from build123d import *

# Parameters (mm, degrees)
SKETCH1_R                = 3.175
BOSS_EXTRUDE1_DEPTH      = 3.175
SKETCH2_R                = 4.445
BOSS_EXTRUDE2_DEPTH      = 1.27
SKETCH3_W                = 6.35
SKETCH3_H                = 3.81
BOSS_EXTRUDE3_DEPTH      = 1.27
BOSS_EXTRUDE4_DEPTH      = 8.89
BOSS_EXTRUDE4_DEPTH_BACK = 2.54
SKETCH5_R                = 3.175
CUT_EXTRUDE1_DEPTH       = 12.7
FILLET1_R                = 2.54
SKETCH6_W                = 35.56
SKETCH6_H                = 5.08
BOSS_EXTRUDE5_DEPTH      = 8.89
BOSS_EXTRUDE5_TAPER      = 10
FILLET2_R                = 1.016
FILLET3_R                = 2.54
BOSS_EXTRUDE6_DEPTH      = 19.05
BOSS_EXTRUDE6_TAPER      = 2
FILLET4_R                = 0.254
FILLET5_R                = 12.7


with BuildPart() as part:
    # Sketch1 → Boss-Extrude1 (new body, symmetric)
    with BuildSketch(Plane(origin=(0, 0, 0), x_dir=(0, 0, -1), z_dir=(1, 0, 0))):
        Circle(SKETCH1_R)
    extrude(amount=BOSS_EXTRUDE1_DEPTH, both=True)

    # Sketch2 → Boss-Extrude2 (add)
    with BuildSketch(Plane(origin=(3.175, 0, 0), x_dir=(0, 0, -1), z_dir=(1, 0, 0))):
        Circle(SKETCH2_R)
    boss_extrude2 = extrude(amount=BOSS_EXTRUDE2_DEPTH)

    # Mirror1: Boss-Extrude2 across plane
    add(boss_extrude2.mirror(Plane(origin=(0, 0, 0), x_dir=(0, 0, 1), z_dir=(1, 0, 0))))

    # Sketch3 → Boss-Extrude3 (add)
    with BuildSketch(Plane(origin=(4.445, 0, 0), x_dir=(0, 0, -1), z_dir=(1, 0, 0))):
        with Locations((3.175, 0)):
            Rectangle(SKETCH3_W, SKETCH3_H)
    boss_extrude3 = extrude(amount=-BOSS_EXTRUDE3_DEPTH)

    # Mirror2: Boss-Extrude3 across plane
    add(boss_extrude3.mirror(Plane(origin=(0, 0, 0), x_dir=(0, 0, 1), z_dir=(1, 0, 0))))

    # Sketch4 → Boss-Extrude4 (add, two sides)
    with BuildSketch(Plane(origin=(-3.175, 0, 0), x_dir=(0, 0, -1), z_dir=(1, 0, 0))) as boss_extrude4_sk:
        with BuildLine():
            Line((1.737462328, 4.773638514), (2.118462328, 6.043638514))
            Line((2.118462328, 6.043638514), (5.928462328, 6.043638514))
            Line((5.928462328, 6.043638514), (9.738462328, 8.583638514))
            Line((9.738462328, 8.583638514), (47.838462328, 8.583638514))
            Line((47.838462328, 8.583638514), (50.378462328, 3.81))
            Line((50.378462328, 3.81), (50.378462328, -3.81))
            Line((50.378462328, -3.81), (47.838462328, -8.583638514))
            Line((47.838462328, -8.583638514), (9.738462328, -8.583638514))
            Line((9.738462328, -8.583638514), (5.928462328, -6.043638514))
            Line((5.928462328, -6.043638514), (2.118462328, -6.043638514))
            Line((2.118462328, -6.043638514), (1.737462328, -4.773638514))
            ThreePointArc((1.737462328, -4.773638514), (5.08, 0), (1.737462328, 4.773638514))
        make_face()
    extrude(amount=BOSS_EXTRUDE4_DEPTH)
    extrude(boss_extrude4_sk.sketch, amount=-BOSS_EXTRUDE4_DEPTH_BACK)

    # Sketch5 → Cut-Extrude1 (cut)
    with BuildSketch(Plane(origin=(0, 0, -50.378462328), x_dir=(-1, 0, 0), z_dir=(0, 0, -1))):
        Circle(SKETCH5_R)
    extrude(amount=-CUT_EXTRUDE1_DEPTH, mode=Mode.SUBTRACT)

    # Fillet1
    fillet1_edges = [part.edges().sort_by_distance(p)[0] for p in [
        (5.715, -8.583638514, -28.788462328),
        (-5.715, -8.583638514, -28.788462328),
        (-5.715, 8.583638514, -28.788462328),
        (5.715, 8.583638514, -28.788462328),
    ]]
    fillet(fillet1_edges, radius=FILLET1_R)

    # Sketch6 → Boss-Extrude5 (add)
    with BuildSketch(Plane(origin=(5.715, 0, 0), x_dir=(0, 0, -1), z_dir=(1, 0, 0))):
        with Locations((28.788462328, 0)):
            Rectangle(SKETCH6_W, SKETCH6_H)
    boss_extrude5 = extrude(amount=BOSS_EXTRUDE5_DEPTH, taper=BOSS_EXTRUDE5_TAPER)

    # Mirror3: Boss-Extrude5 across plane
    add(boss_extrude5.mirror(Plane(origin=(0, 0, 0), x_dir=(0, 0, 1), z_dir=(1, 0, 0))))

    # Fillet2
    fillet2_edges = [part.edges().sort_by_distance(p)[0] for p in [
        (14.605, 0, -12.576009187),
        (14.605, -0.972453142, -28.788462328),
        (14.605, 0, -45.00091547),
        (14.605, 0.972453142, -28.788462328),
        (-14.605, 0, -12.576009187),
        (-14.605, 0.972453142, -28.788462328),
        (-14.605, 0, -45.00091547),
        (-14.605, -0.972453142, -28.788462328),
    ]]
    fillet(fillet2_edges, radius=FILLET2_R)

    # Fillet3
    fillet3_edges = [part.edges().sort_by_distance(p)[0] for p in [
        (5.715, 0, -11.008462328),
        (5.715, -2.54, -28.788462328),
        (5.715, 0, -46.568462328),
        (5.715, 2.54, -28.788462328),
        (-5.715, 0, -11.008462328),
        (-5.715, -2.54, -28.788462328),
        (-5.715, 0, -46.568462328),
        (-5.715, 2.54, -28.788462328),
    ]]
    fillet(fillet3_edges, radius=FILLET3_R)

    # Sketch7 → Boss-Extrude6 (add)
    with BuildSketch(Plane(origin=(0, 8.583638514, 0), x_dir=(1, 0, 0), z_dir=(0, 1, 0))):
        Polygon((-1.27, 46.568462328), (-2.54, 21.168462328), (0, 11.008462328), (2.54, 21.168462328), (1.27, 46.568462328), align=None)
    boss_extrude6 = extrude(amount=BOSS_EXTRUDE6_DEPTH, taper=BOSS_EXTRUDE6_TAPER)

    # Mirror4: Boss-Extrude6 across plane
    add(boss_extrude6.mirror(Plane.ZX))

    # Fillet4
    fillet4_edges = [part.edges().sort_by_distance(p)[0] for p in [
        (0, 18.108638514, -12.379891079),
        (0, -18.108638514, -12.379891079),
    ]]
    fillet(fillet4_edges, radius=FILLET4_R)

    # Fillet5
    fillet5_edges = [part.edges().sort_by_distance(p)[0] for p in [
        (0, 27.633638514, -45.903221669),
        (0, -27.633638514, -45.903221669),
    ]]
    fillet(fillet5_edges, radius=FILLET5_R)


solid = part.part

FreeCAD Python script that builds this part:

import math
import FreeCAD as App
import Part
import Sketcher
from FreeCAD import Vector
Q = App.Units.Quantity


def edges_at(feature, points):
    """Names of the edges that pass closest to the given points."""
    edges = feature.Shape.Edges
    near = lambda p: min(range(len(edges)), key=lambda i: edges[i].distToShape(Part.Vertex(*p))[0])
    return sorted({f"Edge{near(p) + 1}" for p in points})


def add_polygon(sketch, points):
    """Adds a closed chain of lines whose ends are joined by coincident constraints."""
    first, n = sketch.GeometryCount, len(points)
    for a, b in zip(points, points[1:] + points[:1]):
        sketch.addGeometry(Part.LineSegment(App.Vector(*a, 0), App.Vector(*b, 0)), False)
    for i in range(n):
        sketch.addConstraint(Sketcher.Constraint("Coincident", first + i, 2, first + (i + 1) % n, 1))

doc = App.newDocument("Part")
params = doc.addObject("Spreadsheet::Sheet", "Params")
for row, (alias, value) in enumerate([
    ("sketch1_diameter", "0.25 in"),
    ("pad1_length", "0.25 in"),
    ("sketch2_diameter", "0.35 in"),
    ("pad2_length", "0.05 in"),
    ("sketch3_width", "0.15 in"),
    ("sketch3_height", "0.25 in"),
    ("pad3_length", "0.05 in"),
    ("sketch4_radius", "0.2 in"),
    ("sketch4_width", "0.3 in"),
    ("sketch4_height", "1.5 in"),
    ("sketch4_height2", "0.15 in"),
    ("pad4_length", "0.35 in"),
    ("pad4_length2", "0.1 in"),
    ("sketch5_diameter", "0.25 in"),
    ("pocket1_length", "0.5 in"),
    ("fillet_radius", "0.1 in"),
    ("sketch6_width", "0.2 in"),
    ("sketch6_height", "1.4 in"),
    ("pad5_length", "0.35 in"),
    ("pad5_taper", "-10 deg"),
    ("fillet2_radius", "0.04 in"),
    ("fillet3_radius", "0.1 in"),
    ("sketch7_width", "0.1 in"),
    ("pad6_length", "0.75 in"),
    ("pad6_taper", "-2 deg"),
    ("fillet4_radius", "0.01 in"),
    ("fillet5_radius", "0.5 in"),
], start=1):
    params.set(f"A{row}", alias)
    params.set(f"B{row}", "=" + value)
    params.setAlias(f"B{row}", alias)

body = doc.addObject("PartDesign::Body", "Body")

# Sketch on YZ plane
sketch1 = body.newObject("Sketcher::SketchObject", "Sketch")
sketch1.AttachmentSupport = (doc.getObject("YZ_Plane"), [""])
sketch1.MapMode = "FlatFace"
sketch1.addGeometry(Part.Circle(Vector(0, 0, 0), Vector(0, 0, 1), 3.175), False)
sketch1.addConstraint([
    Sketcher.Constraint("Coincident", 0, 3, -1, 1),
    Sketcher.Constraint("Diameter", 0, Q("0.25 in")),
])
sketch1.setExpression("Constraints[1]", "Params.sketch1_diameter")
pad1 = body.newObject("PartDesign::Pad", "Pad")
pad1.Profile = sketch1
pad1.setExpression("Length", "Params.pad1_length")
pad1.Midplane = True

# Sketch on YZ plane
sketch2 = body.newObject("Sketcher::SketchObject", "Sketch001")
sketch2.AttachmentSupport = (doc.getObject("YZ_Plane"), [""])
sketch2.MapMode = "FlatFace"
sketch2.AttachmentOffset = App.Placement(Vector(0, 0, 0.125 * 25.4), App.Rotation())
sketch2.addGeometry(Part.Circle(Vector(0, 0, 0), Vector(0, 0, 1), 4.445), False)
sketch2.addConstraint([
    Sketcher.Constraint("Coincident", 0, 3, -1, 1),
    Sketcher.Constraint("Diameter", 0, Q("0.35 in")),
])
sketch2.setExpression("Constraints[1]", "Params.sketch2_diameter")
pad2 = body.newObject("PartDesign::Pad", "Pad001")
pad2.Profile = sketch2
pad2.setExpression("Length", "Params.pad2_length")
doc.recompute()

mirrored = body.newObject("PartDesign::Mirrored", "Mirrored")
mirrored.Originals = [pad2]
mirrored.MirrorPlane = (doc.getObject("YZ_Plane"), [""])
body.Tip = mirrored

# Sketch on YZ plane
sketch3 = body.newObject("Sketcher::SketchObject", "Sketch002")
sketch3.AttachmentSupport = (doc.getObject("YZ_Plane"), [""])
sketch3.MapMode = "FlatFace"
sketch3.AttachmentOffset = App.Placement(Vector(0, 0, 0.175 * 25.4), App.Rotation())
add_polygon(sketch3, [(1.905, 0), (-1.905, 0), (-1.905, -6.35), (1.905, -6.35)])  # lines 0-3
sketch3.addConstraint([
    Sketcher.Constraint("Horizontal", 0),
    Sketcher.Constraint("Vertical", 1),
    Sketcher.Constraint("Horizontal", 2),
    Sketcher.Constraint("Vertical", 3),
    Sketcher.Constraint("Symmetric", 0, 2, 3, 2, -1, 1),
    Sketcher.Constraint("DistanceX", 0, 2, 0, 1, Q("0.15 in")),
    Sketcher.Constraint("DistanceY", 1, 2, 1, 1, Q("0.25 in")),
])
sketch3.setExpression("Constraints[9]", "Params.sketch3_width")
sketch3.setExpression("Constraints[10]", "Params.sketch3_height")
pad3 = body.newObject("PartDesign::Pad", "Pad002")
pad3.Profile = sketch3
pad3.setExpression("Length", "Params.pad3_length")
pad3.Reversed = True
doc.recompute()

mirrored2 = body.newObject("PartDesign::Mirrored", "Mirrored001")
mirrored2.Originals = [pad3]
mirrored2.MirrorPlane = (doc.getObject("YZ_Plane"), [""])
body.Tip = mirrored2

# Sketch on YZ plane
sketch4 = body.newObject("Sketcher::SketchObject", "Sketch003")
sketch4.AttachmentSupport = (doc.getObject("YZ_Plane"), [""])
sketch4.MapMode = "FlatFace"
sketch4.AttachmentOffset = App.Placement(Vector(0, 0, -0.125 * 25.4), App.Rotation())
sketch4.addGeometry([
    Part.LineSegment(Vector(6.043639, -2.118462, 0), Vector(4.773639, -1.737462, 0)),  # 0
    Part.ArcOfCircle(Part.Circle(Vector(0, 0, 0), Vector(0, 0, 1), 5.08), math.radians(-160), math.radians(-20)),  # 1
    Part.LineSegment(Vector(-4.773639, -1.737462, 0), Vector(-6.043639, -2.118462, 0)),  # 2
    Part.LineSegment(Vector(-6.043639, -2.118462, 0), Vector(-6.043639, -5.928462, 0)),  # 3
    Part.LineSegment(Vector(-6.043639, -5.928462, 0), Vector(-8.583639, -9.738462, 0)),  # 4
    Part.LineSegment(Vector(-8.583639, -9.738462, 0), Vector(-8.583639, -47.838462, 0)),  # 5
    Part.LineSegment(Vector(-8.583639, -47.838462, 0), Vector(-3.81, -50.378462, 0)),  # 6
    Part.LineSegment(Vector(-3.81, -50.378462, 0), Vector(3.81, -50.378462, 0)),  # 7
    Part.LineSegment(Vector(3.81, -50.378462, 0), Vector(8.583639, -47.838462, 0)),  # 8
    Part.LineSegment(Vector(8.583639, -47.838462, 0), Vector(8.583639, -9.738462, 0)),  # 9
    Part.LineSegment(Vector(8.583639, -9.738462, 0), Vector(6.043639, -5.928462, 0)),  # 10
    Part.LineSegment(Vector(6.043639, -5.928462, 0), Vector(6.043639, -2.118462, 0)),  # 11
], False)
sketch4.addConstraint([
    Sketcher.Constraint("Coincident", 0, 2, 1, 2),
    Sketcher.Constraint("Coincident", 1, 1, 2, 1),
    Sketcher.Constraint("Coincident", 2, 2, 3, 1),
    Sketcher.Constraint("Coincident", 3, 2, 4, 1),
    Sketcher.Constraint("Coincident", 4, 2, 5, 1),
    Sketcher.Constraint("Coincident", 5, 2, 6, 1),
    Sketcher.Constraint("Coincident", 6, 2, 7, 1),
    Sketcher.Constraint("Coincident", 7, 2, 8, 1),
    Sketcher.Constraint("Coincident", 8, 2, 9, 1),
    Sketcher.Constraint("Coincident", 9, 2, 10, 1),
    Sketcher.Constraint("Coincident", 10, 2, 11, 1),
    Sketcher.Constraint("Coincident", 11, 2, 0, 1),
    Sketcher.Constraint("Vertical", 3),
    Sketcher.Constraint("Vertical", 5),
    Sketcher.Constraint("Horizontal", 7),
    Sketcher.Constraint("Vertical", 9),
    Sketcher.Constraint("Vertical", 11),
    Sketcher.Constraint("Coincident", 1, 3, -1, 1),
    Sketcher.Constraint("Symmetric", 5, 2, 8, 2, -2),
    Sketcher.Constraint("Symmetric", 3, 2, 10, 2, -2),
    Sketcher.Constraint("Horizontal", 0, 2, 1, 1),
    Sketcher.Constraint("Horizontal", 4, 2, 9, 2),
    Sketcher.Constraint("Horizontal", 2, 2, 11, 2),
    Sketcher.Constraint("Equal", 6, 8),
    Sketcher.Constraint("Radius", 1, Q("0.2 in")),
    Sketcher.Constraint("DistanceX", 7, 1, 7, 2, Q("0.3 in")),
    Sketcher.Constraint("DistanceY", 5, 2, 5, 1, Q("1.5 in")),
    Sketcher.Constraint("DistanceY", 3, 2, 3, 1, Q("0.15 in")),
    Sketcher.Constraint("DistanceX", 4, 2, 3, 2, Q("0.1 in")),
    Sketcher.Constraint("DistanceY", 4, 2, 2, 2, Q("0.3 in")),
    Sketcher.Constraint("DistanceY", 6, 2, 5, 2, Q("0.1 in")),
    Sketcher.Constraint("DistanceX", 2, 2, 1, 1, Q("0.05 in")),
    Sketcher.Constraint("DistanceY", 2, 2, 1, 1, Q("0.015 in")),
    Sketcher.Constraint("Distance", 6, Q("5.407331 mm")),
])
sketch4.setExpression("Constraints[24]", "Params.sketch4_radius")
sketch4.setExpression("Constraints[25]", "Params.sketch4_width")
sketch4.setExpression("Constraints[26]", "Params.sketch4_height")
sketch4.setExpression("Constraints[27]", "Params.sketch4_height2")
pad4 = body.newObject("PartDesign::Pad", "Pad003")
pad4.Profile = sketch4
pad4.Type = "TwoLengths"
pad4.setExpression("Length", "Params.pad4_length")
pad4.setExpression("Length2", "Params.pad4_length2")

# Sketch on XY plane
sketch5 = body.newObject("Sketcher::SketchObject", "Sketch004")
sketch5.AttachmentSupport = (doc.getObject("XY_Plane"), [""])
sketch5.MapMode = "FlatFace"
sketch5.AttachmentOffset = App.Placement(Vector(0, 0, -50.378462), App.Rotation())
sketch5.addGeometry(Part.Circle(Vector(0, 0, 0), Vector(0, 0, 1), 3.175), False)
sketch5.addConstraint([
    Sketcher.Constraint("Coincident", 0, 3, -1, 1),
    Sketcher.Constraint("Diameter", 0, Q("0.25 in")),
])
sketch5.setExpression("Constraints[1]", "Params.sketch5_diameter")
pocket1 = body.newObject("PartDesign::Pocket", "Pocket")
pocket1.Profile = sketch5
pocket1.setExpression("Length", "Params.pocket1_length")
pocket1.Reversed = True
doc.recompute()

fillet = body.newObject("PartDesign::Fillet", "Fillet")
fillet.Base = (pocket1, edges_at(pocket1, [
    (5.715, -8.584, -28.788),
    (-5.715, -8.584, -28.788),
    (-5.715, 8.584, -28.788),
    (5.715, 8.584, -28.788),
]))
fillet.setExpression("Radius", "Params.fillet_radius")

# Sketch on YZ plane
sketch6 = body.newObject("Sketcher::SketchObject", "Sketch005")
sketch6.AttachmentSupport = (doc.getObject("YZ_Plane"), [""])
sketch6.MapMode = "FlatFace"
sketch6.AttachmentOffset = App.Placement(Vector(0, 0, 0.225 * 25.4), App.Rotation())
add_polygon(sketch6, [(2.54, -11.008462), (-2.54, -11.008462), (-2.54, -46.568462), (2.54, -46.568462)])  # lines 0-3
sketch6.addConstraint([
    Sketcher.Constraint("Horizontal", 0),
    Sketcher.Constraint("Vertical", 1),
    Sketcher.Constraint("Horizontal", 2),
    Sketcher.Constraint("Vertical", 3),
    Sketcher.Constraint("DistanceX", 0, 2, 0, 1, Q("0.2 in")),
    Sketcher.Constraint("DistanceY", 1, 2, 1, 1, Q("1.4 in")),
    Sketcher.Constraint("DistanceX", 0, 2, -1, 1, Q("0.1 in")),
    Sketcher.Constraint("DistanceY", 0, 2, -1, 1, Q("11.008462 mm")),
])
sketch6.setExpression("Constraints[8]", "Params.sketch6_width")
sketch6.setExpression("Constraints[9]", "Params.sketch6_height")
pad5 = body.newObject("PartDesign::Pad", "Pad004")
pad5.Profile = sketch6
pad5.setExpression("Length", "Params.pad5_length")
pad5.setExpression("TaperAngle", "Params.pad5_taper")
doc.recompute()

mirrored3 = body.newObject("PartDesign::Mirrored", "Mirrored002")
mirrored3.Originals = [pad5]
mirrored3.MirrorPlane = (doc.getObject("YZ_Plane"), [""])
body.Tip = mirrored3
doc.recompute()

fillet2 = body.newObject("PartDesign::Fillet", "Fillet001")
fillet2.Base = (mirrored3, edges_at(mirrored3, [
    (14.605, 0, -12.576),
    (14.605, -0.972, -28.788),
    (14.605, 0, -45.001),
    (14.605, 0.972, -28.788),
    (-14.605, 0, -12.576),
    (-14.605, 0.972, -28.788),
    (-14.605, 0, -45.001),
    (-14.605, -0.972, -28.788),
]))
fillet2.setExpression("Radius", "Params.fillet2_radius")
doc.recompute()

fillet3 = body.newObject("PartDesign::Fillet", "Fillet002")
fillet3.Base = (fillet2, edges_at(fillet2, [
    (5.715, 0, -11.008),
    (5.715, -2.54, -28.788),
    (5.715, 0, -46.568),
    (5.715, 2.54, -28.788),
    (-5.715, 0, -11.008),
    (-5.715, -2.54, -28.788),
    (-5.715, 0, -46.568),
    (-5.715, 2.54, -28.788),
]))
fillet3.setExpression("Radius", "Params.fillet3_radius")

# Sketch on XZ plane
sketch7 = body.newObject("Sketcher::SketchObject", "Sketch006")
sketch7.AttachmentSupport = (doc.getObject("XZ_Plane"), [""])
sketch7.MapMode = "FlatFace"
sketch7.AttachmentOffset = App.Placement(Vector(0, 0, -8.583639), App.Rotation())
add_polygon(sketch7, [(-1.27, -46.568462), (-2.54, -21.168462), (0, -11.008462), (2.54, -21.168462), (1.27, -46.568462)])  # lines 0-4
sketch7.addConstraint([
    Sketcher.Constraint("Horizontal", 4),
    Sketcher.Constraint("Symmetric", 0, 2, 2, 2, -2),
    Sketcher.Constraint("PointOnObject", 1, 2, -2),
    Sketcher.Constraint("Equal", 0, 3),
    Sketcher.Constraint("DistanceX", 4, 2, 4, 1, Q("0.1 in")),
    Sketcher.Constraint("DistanceY", 3, 2, 2, 2, Q("1 in")),
    Sketcher.Constraint("DistanceX", 0, 2, -1, 1, Q("0.1 in")),
    Sketcher.Constraint("DistanceY", 0, 2, 1, 2, Q("0.4 in")),
    Sketcher.Constraint("DistanceY", 0, 2, -1, 1, Q("21.168462 mm")),
])
sketch7.setExpression("Constraints[9]", "Params.sketch7_width")
pad6 = body.newObject("PartDesign::Pad", "Pad005")
pad6.Profile = sketch7
pad6.setExpression("Length", "Params.pad6_length")
pad6.Reversed = True
pad6.setExpression("TaperAngle", "Params.pad6_taper")
doc.recompute()

mirrored4 = body.newObject("PartDesign::Mirrored", "Mirrored003")
mirrored4.Originals = [pad6]
mirrored4.MirrorPlane = (doc.getObject("XZ_Plane"), [""])
body.Tip = mirrored4
doc.recompute()

fillet4 = body.newObject("PartDesign::Fillet", "Fillet003")
fillet4.Base = (mirrored4, edges_at(mirrored4, [(0, 18.109, -12.38), (0, -18.109, -12.38)]))
fillet4.setExpression("Radius", "Params.fillet4_radius")
doc.recompute()

fillet5 = body.newObject("PartDesign::Fillet", "Fillet004")
fillet5.Base = (fillet4, edges_at(fillet4, [(0, 27.634, -45.903), (0, -27.634, -45.903)]))
fillet5.setExpression("Radius", "Params.fillet5_radius")

doc.recompute()
